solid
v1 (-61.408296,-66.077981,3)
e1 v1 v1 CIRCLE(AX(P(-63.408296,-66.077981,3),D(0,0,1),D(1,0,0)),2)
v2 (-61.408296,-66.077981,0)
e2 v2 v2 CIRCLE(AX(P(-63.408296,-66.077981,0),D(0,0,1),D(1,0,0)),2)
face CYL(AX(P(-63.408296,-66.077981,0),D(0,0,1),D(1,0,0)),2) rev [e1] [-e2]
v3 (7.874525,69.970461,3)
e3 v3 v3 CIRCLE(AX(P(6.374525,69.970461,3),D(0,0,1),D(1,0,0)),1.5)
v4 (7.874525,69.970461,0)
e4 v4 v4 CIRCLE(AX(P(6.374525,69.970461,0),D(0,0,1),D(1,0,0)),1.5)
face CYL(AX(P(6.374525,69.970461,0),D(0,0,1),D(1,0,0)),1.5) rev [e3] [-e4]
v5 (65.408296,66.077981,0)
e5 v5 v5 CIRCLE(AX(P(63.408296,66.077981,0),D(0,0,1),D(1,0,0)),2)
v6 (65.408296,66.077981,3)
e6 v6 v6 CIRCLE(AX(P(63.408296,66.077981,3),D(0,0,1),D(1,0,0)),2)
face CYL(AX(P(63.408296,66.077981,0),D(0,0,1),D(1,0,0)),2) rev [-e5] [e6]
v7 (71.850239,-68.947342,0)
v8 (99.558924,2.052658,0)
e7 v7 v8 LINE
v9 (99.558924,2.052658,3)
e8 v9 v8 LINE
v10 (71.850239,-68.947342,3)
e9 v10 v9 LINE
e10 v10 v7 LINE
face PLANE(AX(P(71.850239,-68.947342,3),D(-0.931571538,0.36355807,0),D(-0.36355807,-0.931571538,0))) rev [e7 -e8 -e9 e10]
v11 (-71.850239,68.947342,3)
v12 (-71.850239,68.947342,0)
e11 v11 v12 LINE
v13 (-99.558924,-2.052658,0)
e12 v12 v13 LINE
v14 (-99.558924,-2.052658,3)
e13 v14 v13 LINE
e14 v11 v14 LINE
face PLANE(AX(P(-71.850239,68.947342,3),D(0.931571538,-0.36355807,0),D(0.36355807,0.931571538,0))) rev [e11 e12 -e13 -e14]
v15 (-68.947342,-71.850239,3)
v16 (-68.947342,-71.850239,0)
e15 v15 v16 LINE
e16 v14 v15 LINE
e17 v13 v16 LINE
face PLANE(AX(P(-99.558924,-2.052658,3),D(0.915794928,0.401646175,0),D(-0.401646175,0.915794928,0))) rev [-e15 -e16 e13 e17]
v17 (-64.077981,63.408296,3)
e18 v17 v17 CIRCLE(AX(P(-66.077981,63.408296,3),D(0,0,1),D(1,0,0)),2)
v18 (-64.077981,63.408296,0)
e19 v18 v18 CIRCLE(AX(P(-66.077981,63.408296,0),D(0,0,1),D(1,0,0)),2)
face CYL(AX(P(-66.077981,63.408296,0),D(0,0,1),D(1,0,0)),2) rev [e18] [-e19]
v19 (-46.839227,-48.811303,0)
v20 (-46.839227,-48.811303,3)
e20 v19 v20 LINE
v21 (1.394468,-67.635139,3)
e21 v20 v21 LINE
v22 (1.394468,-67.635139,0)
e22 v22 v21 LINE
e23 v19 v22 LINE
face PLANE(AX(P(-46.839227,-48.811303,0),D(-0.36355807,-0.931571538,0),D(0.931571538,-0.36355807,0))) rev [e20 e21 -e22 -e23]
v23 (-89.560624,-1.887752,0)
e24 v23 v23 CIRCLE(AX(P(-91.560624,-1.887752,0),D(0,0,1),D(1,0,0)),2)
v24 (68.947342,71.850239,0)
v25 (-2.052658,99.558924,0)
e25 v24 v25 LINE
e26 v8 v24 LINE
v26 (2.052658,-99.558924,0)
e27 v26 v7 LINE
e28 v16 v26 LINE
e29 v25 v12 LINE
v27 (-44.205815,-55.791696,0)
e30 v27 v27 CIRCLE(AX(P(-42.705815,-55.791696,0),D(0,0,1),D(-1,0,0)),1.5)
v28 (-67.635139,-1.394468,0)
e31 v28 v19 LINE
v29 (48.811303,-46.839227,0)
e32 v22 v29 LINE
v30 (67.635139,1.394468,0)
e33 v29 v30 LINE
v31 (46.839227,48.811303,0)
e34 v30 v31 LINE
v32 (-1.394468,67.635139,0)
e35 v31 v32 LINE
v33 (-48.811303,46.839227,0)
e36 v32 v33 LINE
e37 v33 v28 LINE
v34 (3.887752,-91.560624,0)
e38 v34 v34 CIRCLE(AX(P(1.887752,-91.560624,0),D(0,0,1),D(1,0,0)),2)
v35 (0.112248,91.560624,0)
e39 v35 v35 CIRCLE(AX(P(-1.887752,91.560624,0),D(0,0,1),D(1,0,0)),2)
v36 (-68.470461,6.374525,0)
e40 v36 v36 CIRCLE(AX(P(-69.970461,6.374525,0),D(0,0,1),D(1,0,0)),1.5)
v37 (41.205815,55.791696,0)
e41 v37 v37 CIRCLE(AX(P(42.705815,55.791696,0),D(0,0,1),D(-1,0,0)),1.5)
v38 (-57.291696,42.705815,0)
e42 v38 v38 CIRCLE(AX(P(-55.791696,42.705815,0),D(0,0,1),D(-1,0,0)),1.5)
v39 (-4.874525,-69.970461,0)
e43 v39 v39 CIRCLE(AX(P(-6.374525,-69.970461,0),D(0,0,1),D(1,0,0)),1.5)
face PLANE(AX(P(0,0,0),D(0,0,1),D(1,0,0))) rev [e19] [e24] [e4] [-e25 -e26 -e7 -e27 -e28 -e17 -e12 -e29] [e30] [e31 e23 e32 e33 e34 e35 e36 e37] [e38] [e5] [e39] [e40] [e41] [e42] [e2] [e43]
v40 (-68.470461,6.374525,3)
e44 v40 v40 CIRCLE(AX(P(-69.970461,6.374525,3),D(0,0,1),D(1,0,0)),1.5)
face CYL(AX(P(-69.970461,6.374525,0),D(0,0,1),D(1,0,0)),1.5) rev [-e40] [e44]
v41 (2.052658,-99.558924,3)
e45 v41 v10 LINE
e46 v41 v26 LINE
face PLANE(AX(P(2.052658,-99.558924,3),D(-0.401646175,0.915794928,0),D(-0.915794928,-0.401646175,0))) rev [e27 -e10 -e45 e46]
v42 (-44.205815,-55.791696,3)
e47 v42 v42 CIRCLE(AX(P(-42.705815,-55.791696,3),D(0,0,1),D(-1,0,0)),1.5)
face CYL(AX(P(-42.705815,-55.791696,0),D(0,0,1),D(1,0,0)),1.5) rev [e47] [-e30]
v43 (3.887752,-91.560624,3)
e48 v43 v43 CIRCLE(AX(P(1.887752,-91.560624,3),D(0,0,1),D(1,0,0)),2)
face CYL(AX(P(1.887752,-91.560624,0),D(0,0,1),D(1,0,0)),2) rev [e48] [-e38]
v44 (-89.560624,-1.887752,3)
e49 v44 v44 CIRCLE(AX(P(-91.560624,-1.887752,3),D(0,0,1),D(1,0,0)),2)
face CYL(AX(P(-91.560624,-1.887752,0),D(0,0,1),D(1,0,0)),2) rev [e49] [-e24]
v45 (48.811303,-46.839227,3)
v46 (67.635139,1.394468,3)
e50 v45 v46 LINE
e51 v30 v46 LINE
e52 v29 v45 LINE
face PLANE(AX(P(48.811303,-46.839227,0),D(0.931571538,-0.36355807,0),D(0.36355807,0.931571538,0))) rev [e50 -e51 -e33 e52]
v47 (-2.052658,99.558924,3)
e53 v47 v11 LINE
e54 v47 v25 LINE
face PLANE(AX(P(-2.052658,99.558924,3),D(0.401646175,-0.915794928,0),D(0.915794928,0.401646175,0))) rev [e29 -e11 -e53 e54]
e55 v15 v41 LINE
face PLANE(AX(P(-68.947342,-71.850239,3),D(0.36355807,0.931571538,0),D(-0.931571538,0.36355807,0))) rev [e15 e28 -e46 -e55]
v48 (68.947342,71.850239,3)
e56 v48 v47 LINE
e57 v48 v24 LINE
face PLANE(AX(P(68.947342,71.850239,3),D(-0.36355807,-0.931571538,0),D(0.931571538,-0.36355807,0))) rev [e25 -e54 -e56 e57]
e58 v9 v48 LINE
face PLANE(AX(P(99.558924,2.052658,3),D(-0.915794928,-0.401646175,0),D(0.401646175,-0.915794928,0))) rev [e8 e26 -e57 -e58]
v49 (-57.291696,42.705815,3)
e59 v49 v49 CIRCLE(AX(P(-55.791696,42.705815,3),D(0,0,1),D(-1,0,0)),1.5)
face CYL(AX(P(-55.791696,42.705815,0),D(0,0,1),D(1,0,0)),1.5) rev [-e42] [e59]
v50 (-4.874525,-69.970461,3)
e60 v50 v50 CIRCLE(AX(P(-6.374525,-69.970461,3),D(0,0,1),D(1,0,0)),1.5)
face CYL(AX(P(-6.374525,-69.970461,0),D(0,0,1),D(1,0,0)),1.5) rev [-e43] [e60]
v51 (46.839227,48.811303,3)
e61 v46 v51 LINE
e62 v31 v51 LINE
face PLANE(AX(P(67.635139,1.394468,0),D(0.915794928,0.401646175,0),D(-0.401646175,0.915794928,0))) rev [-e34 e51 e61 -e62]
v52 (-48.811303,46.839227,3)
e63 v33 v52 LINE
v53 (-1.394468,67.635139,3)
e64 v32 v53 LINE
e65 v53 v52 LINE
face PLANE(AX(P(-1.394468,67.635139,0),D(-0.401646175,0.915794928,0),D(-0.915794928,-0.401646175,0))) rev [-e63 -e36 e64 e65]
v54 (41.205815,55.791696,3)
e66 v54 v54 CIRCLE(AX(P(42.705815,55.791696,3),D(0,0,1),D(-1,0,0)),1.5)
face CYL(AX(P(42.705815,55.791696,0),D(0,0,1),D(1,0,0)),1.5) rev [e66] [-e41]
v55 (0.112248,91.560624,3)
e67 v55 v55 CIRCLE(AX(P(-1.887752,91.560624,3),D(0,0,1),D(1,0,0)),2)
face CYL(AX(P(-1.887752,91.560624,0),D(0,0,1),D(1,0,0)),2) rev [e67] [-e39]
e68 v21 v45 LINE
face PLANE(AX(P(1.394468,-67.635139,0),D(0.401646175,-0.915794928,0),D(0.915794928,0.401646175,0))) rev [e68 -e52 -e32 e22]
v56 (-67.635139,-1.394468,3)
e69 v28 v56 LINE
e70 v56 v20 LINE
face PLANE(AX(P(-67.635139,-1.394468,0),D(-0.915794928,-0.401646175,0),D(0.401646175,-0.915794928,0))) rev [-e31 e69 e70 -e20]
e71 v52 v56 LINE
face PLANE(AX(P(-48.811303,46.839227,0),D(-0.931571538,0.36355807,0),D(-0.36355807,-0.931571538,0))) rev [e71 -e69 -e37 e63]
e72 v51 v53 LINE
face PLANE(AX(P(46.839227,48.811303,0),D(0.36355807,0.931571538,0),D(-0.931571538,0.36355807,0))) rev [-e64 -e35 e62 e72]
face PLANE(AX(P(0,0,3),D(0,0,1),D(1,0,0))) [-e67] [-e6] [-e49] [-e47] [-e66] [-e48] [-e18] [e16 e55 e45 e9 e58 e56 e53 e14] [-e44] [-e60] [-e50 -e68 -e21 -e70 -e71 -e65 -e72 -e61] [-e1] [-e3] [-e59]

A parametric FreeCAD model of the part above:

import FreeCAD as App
import Part
import Sketcher

V = App.Vector

doc = App.newDocument("Part")
body = doc.addObject("PartDesign::Body", "Body")

# Sketch on XY plane
sketch1 = body.newObject("Sketcher::SketchObject", "Sketch")
sketch1.AttachmentSupport = (doc.getObject("XY_Plane"), [""])
sketch1.MapMode = "FlatFace"
sketch1.addGeometry(Part.LineSegment(V(-100, -2, 0), V(-69, -72, 0)), False)
sketch1.addGeometry(Part.LineSegment(V(-69, -72, 0), V(2, -100, 0)), False)
sketch1.addGeometry(Part.LineSegment(V(2, -100, 0), V(72, -69, 0)), False)
sketch1.addGeometry(Part.LineSegment(V(72, -69, 0), V(100, 2, 0)), False)
sketch1.addGeometry(Part.LineSegment(V(100, 2, 0), V(69, 72, 0)), False)
sketch1.addGeometry(Part.LineSegment(V(69, 72, 0), V(-2, 100, 0)), False)
sketch1.addGeometry(Part.LineSegment(V(-2, 100, 0), V(-72, 69, 0)), False)
sketch1.addGeometry(Part.LineSegment(V(-72, 69, 0), V(-100, -2, 0)), False)
sketch1.addConstraint(Sketcher.Constraint("Coincident", 0, 2, 1, 1))
sketch1.addConstraint(Sketcher.Constraint("Coincident", 1, 2, 2, 1))
sketch1.addConstraint(Sketcher.Constraint("Coincident", 2, 2, 3, 1))
sketch1.addConstraint(Sketcher.Constraint("Coincident", 3, 2, 4, 1))
sketch1.addConstraint(Sketcher.Constraint("Coincident", 4, 2, 5, 1))
sketch1.addConstraint(Sketcher.Constraint("Coincident", 5, 2, 6, 1))
sketch1.addConstraint(Sketcher.Constraint("Coincident", 6, 2, 7, 1))
sketch1.addConstraint(Sketcher.Constraint("Coincident", 7, 2, 0, 1))
sketch1.addConstraint(Sketcher.Constraint("Symmetric", 0, 2, 4, 2, -1, 1))
sketch1.addConstraint(Sketcher.Constraint("Symmetric", 1, 2, 5, 2, -1, 1))
sketch1.addConstraint(Sketcher.Constraint("Symmetric", 2, 2, 6, 2, -1, 1))
sketch1.addConstraint(Sketcher.Constraint("Symmetric", 3, 2, 7, 2, -1, 1))
sketch1.addConstraint(Sketcher.Constraint("Perpendicular", 0, 2))
sketch1.addConstraint(Sketcher.Constraint("Perpendicular", 1, 3))
sketch1.addConstraint(Sketcher.Constraint("Equal", 0, 1))
sketch1.addConstraint(Sketcher.Constraint("Equal", 1, 2))
sketch1.addConstraint(Sketcher.Constraint("Equal", 2, 3))
sketch1.addConstraint(Sketcher.Constraint("DistanceX", 0, 2, 1, 2, 71.0))
sketch1.addConstraint(Sketcher.Constraint("DistanceY", 0, 2, -1, 1, 71.850239))
sketch1.addConstraint(Sketcher.Constraint("DistanceX", 1, 2, 2, 2, 69.797581))
pad1 = body.newObject("PartDesign::Pad", "Pad")
pad1.Profile = sketch1
pad1.Length = 3

# Sketch on XY plane
sketch2 = body.newObject("Sketcher::SketchObject", "Sketch001")
sketch2.AttachmentSupport = (doc.getObject("XY_Plane"), [""])
sketch2.MapMode = "FlatFace"
sketch2.AttachmentOffset = App.Placement(V(0, 0, 3), App.Rotation())
sketch2.addGeometry(Part.Circle(V(6.4, 70, 0), V(0, 0, 1), 1.5), False)
sketch2.addGeometry(Part.Circle(V(42.7, 55.8, 0), V(0, 0, 1), 1.5), False)
sketch2.addGeometry(Part.Circle(V(-6.4, -70, 0), V(0, 0, 1), 1.5), False)
sketch2.addGeometry(Part.Circle(V(-42.7, -55.8, 0), V(0, 0, 1), 1.5), False)
sketch2.addGeometry(Part.Circle(V(-70, 6.4, 0), V(0, 0, 1), 1.5), False)
sketch2.addGeometry(Part.Circle(V(-55.8, 42.7, 0), V(0, 0, 1), 1.5), False)
sketch2.addGeometry(Part.LineSegment(V(-67.6, -1.4, 0), V(-46.8, -48.8, 0)), False)
sketch2.addGeometry(Part.LineSegment(V(-46.8, -48.8, 0), V(1.4, -67.6, 0)), False)
sketch2.addGeometry(Part.LineSegment(V(1.4, -67.6, 0), V(48.8, -46.8, 0)), False)
sketch2.addGeometry(Part.LineSegment(V(48.8, -46.8, 0), V(67.6, 1.4, 0)), False)
sketch2.addGeometry(Part.LineSegment(V(67.6, 1.4, 0), V(46.8, 48.8, 0)), False)
sketch2.addGeometry(Part.LineSegment(V(46.8, 48.8, 0), V(-1.4, 67.6, 0)), False)
sketch2.addGeometry(Part.LineSegment(V(-1.4, 67.6, 0), V(-48.8, 46.8, 0)), False)
sketch2.addGeometry(Part.LineSegment(V(-48.8, 46.8, 0), V(-67.6, -1.4, 0)), False)
sketch2.addConstraint(Sketcher.Constraint("Coincident", 6, 2, 7, 1))
sketch2.addConstraint(Sketcher.Constraint("Coincident", 7, 2, 8, 1))
sketch2.addConstraint(Sketcher.Constraint("Coincident", 8, 2, 9, 1))
sketch2.addConstraint(Sketcher.Constraint("Coincident", 9, 2, 10, 1))
sketch2.addConstraint(Sketcher.Constraint("Coincident", 10, 2, 11, 1))
sketch2.addConstraint(Sketcher.Constraint("Coincident", 11, 2, 12, 1))
sketch2.addConstraint(Sketcher.Constraint("Coincident", 12, 2, 13, 1))
sketch2.addConstraint(Sketcher.Constraint("Coincident", 13, 2, 6, 1))
sketch2.addConstraint(Sketcher.Constraint("Equal", 0, 1))
sketch2.addConstraint(Sketcher.Constraint("Equal", 1, 2))
sketch2.addConstraint(Sketcher.Constraint("Equal", 2, 3))
sketch2.addConstraint(Sketcher.Constraint("Equal", 3, 4))
sketch2.addConstraint(Sketcher.Constraint("Equal", 4, 5))
sketch2.addConstraint(Sketcher.Constraint("Symmetric", 0, 3, 2, 3, -1, 1))
sketch2.addConstraint(Sketcher.Constraint("Symmetric", 1, 3, 3, 3, -1, 1))
sketch2.addConstraint(Sketcher.Constraint("Symmetric", 6, 2, 10, 2, -1, 1))
sketch2.addConstraint(Sketcher.Constraint("Symmetric", 7, 2, 11, 2, -1, 1))
sketch2.addConstraint(Sketcher.Constraint("Symmetric", 8, 2, 12, 2, -1, 1))
sketch2.addConstraint(Sketcher.Constraint("Symmetric", 9, 2, 13, 2, -1, 1))
sketch2.addConstraint(Sketcher.Constraint("Perpendicular", 6, 8))
sketch2.addConstraint(Sketcher.Constraint("Perpendicular", 7, 9))
sketch2.addConstraint(Sketcher.Constraint("Equal", 6, 7))
sketch2.addConstraint(Sketcher.Constraint("Equal", 7, 8))
sketch2.addConstraint(Sketcher.Constraint("Equal", 8, 9))
sketch2.addConstraint(Sketcher.Constraint("Diameter", 0, 3.0))
sketch2.addConstraint(Sketcher.Constraint("DistanceY", -1, 1, 0, 3, 69.970461))
sketch2.addConstraint(Sketcher.Constraint("DistanceX", 4, 3, -1, 1, 69.970461))
sketch2.addConstraint(Sketcher.Constraint("DistanceX", -1, 1, 7, 2, 1.394468))
sketch2.addConstraint(Sketcher.Constraint("DistanceY", 7, 2, -1, 1, 67.635139))
sketch2.addConstraint(Sketcher.Constraint("DistanceX", 0, 3, 1, 3, 36.33129))
sketch2.addConstraint(Sketcher.Constraint("DistanceX", 2, 3, 1, 3, 49.080339))
sketch2.addConstraint(Sketcher.Constraint("DistanceY", 3, 3, 4, 3, 62.166221))
sketch2.addConstraint(Sketcher.Constraint("DistanceY", 4, 3, 1, 3, 49.417172))
sketch2.addConstraint(Sketcher.Constraint("DistanceY", 4, 3, 5, 3, 36.33129))
sketch2.addConstraint(Sketcher.Constraint("DistanceX", 5, 3, 0, 3, 62.166221))
sketch2.addConstraint(Sketcher.Constraint("DistanceY", 6, 2, 4, 3, 55.185828))
pocket1 = body.newObject("PartDesign::Pocket", "Pocket")
pocket1.Profile = sketch2
pocket1.Type = "ThroughAll"

# Sketch on XY plane
sketch3 = body.newObject("Sketcher::SketchObject", "Sketch002")
sketch3.AttachmentSupport = (doc.getObject("XY_Plane"), [""])
sketch3.MapMode = "FlatFace"
sketch3.AttachmentOffset = App.Placement(V(0, 0, 3), App.Rotation())
sketch3.addGeometry(Part.Circle(V(-1.9, 91.6, 0), V(0, 0, 1), 2), False)
sketch3.addGeometry(Part.Circle(V(63.4, 66.1, 0), V(0, 0, 1), 2), False)
sketch3.addGeometry(Part.Circle(V(1.9, -91.6, 0), V(0, 0, 1), 2), False)
sketch3.addGeometry(Part.Circle(V(-63.4, -66.1, 0), V(0, 0, 1), 2), False)
sketch3.addGeometry(Part.Circle(V(-91.6, -1.9, 0), V(0, 0, 1), 2), False)
sketch3.addGeometry(Part.Circle(V(-66.1, 63.4, 0), V(0, 0, 1), 2), False)
sketch3.addConstraint(Sketcher.Constraint("Equal", 0, 1))
sketch3.addConstraint(Sketcher.Constraint("Equal", 1, 2))
sketch3.addConstraint(Sketcher.Constraint("Equal", 2, 3))
sketch3.addConstraint(Sketcher.Constraint("Equal", 3, 4))
sketch3.addConstraint(Sketcher.Constraint("Equal", 4, 5))
sketch3.addConstraint(Sketcher.Constraint("Symmetric", 0, 3, 2, 3, -1, 1))
sketch3.addConstraint(Sketcher.Constraint("Symmetric", 1, 3, 3, 3, -1, 1))
sketch3.addConstraint(Sketcher.Constraint("Diameter", 0, 4.0))
sketch3.addConstraint(Sketcher.Constraint("DistanceY", -1, 1, 1, 3, 66.077981))
sketch3.addConstraint(Sketcher.Constraint("DistanceX", 5, 3, -1, 1, 66.077981))
sketch3.addConstraint(Sketcher.Constraint("DistanceX", 0, 3, 1, 3, 65.296048))
sketch3.addConstraint(Sketcher.Constraint("DistanceY", 2, 3, 0, 3, 183.121248))
sketch3.addConstraint(Sketcher.Constraint("DistanceX", 3, 3, 1, 3, 126.816591))
sketch3.addConstraint(Sketcher.Constraint("DistanceX", 4, 3, 3, 3, 28.152329))
sketch3.addConstraint(Sketcher.Constraint("DistanceY", 3, 3, 4, 3, 64.190228))
sketch3.addConstraint(Sketcher.Constraint("DistanceY", 4, 3, 5, 3, 65.296048))
pocket2 = body.newObject("PartDesign::Pocket", "Pocket001")
pocket2.Profile = sketch3
pocket2.Type = "ThroughAll"

doc.recompute()
